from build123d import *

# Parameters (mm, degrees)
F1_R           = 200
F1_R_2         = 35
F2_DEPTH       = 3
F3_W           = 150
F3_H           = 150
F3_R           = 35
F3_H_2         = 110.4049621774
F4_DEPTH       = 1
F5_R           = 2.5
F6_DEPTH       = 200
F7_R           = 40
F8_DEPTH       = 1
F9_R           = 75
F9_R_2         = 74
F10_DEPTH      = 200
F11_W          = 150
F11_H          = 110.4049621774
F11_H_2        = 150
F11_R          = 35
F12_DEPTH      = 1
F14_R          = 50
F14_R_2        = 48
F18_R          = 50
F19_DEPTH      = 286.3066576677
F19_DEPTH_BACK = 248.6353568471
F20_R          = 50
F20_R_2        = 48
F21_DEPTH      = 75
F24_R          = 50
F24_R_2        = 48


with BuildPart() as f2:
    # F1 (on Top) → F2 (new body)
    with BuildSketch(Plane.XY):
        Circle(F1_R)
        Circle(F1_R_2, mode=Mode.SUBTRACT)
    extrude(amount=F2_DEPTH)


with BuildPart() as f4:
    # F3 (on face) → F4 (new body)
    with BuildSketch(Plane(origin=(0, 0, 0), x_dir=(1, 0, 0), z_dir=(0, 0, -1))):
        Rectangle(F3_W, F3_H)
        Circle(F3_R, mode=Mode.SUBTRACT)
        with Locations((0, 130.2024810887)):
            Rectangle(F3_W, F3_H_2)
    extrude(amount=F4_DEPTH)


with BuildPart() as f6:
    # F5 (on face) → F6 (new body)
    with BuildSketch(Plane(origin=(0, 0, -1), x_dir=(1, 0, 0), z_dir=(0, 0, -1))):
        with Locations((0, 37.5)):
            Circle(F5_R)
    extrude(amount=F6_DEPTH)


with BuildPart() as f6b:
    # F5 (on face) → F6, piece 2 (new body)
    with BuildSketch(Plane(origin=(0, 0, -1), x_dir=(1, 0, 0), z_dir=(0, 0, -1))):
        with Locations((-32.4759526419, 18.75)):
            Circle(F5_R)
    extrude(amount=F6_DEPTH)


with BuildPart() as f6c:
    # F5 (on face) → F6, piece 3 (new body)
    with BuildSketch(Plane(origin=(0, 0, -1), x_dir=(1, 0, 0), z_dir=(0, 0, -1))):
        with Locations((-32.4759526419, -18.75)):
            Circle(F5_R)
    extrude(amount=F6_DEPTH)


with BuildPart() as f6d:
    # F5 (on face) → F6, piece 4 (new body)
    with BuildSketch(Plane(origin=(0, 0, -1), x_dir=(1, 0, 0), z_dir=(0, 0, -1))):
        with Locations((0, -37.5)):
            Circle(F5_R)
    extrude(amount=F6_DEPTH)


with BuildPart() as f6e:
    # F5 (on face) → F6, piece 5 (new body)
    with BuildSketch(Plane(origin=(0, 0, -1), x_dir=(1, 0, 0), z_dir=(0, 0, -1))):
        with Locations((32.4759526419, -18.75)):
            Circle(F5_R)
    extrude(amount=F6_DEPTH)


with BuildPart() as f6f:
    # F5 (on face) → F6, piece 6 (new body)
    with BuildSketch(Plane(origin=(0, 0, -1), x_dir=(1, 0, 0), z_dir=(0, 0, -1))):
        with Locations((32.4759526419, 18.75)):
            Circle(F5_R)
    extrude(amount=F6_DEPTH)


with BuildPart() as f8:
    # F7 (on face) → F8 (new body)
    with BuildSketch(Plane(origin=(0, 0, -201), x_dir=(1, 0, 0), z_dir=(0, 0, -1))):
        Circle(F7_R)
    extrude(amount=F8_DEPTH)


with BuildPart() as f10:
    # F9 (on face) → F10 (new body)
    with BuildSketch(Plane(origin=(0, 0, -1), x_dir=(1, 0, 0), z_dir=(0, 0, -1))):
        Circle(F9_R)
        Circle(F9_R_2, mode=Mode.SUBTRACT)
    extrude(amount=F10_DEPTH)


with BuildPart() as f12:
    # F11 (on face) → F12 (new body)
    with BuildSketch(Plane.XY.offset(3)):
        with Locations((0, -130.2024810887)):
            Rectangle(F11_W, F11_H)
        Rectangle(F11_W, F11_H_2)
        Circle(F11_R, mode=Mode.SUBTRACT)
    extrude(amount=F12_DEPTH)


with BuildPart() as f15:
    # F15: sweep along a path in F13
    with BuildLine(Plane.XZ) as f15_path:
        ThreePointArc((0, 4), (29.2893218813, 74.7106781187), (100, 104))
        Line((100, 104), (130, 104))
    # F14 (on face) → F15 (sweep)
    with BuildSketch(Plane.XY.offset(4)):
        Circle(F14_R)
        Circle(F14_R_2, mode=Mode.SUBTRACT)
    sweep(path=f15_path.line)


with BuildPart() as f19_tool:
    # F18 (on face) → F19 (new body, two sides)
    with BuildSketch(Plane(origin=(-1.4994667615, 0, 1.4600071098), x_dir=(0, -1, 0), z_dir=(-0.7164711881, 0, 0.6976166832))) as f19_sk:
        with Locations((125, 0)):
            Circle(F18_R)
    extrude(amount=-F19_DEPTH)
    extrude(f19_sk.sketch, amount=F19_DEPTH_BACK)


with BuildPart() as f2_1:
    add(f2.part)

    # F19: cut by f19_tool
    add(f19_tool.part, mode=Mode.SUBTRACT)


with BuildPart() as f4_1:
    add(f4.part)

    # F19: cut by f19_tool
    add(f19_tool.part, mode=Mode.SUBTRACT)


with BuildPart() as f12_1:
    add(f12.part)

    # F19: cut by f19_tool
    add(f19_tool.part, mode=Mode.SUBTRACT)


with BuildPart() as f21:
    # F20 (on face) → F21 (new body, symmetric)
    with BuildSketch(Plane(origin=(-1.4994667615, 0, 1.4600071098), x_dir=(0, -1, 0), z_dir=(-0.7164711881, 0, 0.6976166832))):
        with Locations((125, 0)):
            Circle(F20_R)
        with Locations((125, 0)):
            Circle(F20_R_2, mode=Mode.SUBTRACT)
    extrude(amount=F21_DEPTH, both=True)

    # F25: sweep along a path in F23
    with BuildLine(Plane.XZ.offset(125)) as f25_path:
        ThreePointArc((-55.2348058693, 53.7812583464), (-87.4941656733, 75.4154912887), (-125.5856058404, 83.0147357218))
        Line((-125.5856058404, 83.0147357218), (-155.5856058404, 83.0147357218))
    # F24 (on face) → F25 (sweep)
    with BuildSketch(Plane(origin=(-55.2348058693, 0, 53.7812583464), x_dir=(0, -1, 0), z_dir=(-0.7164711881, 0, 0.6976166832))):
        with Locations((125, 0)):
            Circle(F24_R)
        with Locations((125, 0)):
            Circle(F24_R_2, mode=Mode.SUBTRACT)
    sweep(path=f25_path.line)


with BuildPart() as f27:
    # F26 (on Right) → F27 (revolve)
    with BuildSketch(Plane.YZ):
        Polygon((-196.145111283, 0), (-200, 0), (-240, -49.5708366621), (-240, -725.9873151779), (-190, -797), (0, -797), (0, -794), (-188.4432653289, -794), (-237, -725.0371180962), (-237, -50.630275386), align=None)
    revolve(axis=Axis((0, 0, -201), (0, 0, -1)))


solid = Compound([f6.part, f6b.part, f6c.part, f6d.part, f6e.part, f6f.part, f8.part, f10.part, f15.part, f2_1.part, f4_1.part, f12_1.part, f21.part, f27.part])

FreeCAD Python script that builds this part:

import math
import FreeCAD as App
import Part
import Sketcher

doc = App.newDocument("Part")
params = doc.addObject("Spreadsheet::Sheet", "Params")
for row, (alias, value) in enumerate([
    ("sketch1_diameter", "400 mm"),
    ("sketch1_diameter2", "70 mm"),
    ("pad1_length", "3 mm"),
    ("sketch2_diameter", "70 mm"),
    ("sketch2_width", "150 mm"),
    ("pad2_length", "1 mm"),
    ("sketch3_diameter", "5 mm"),
    ("pad3_length", "200 mm"),
    ("sketch4_diameter", "5 mm"),
    ("pad4_length", "200 mm"),
    ("sketch5_diameter", "5 mm"),
    ("pad5_length", "200 mm"),
    ("sketch6_diameter", "5 mm"),
    ("pad6_length", "200 mm"),
    ("sketch7_diameter", "5 mm"),
    ("pad7_length", "200 mm"),
    ("sketch8_diameter", "5 mm"),
    ("pad8_length", "200 mm"),
    ("sketch9_diameter", "80 mm"),
    ("pad9_length", "1 mm"),
    ("sketch10_diameter", "150 mm"),
    ("sketch10_diameter2", "148 mm"),
    ("pad10_length", "200 mm"),
    ("sketch11_diameter", "70 mm"),
    ("sketch11_width", "150 mm"),
    ("pad11_length", "1 mm"),
    ("sketch12_diameter", "100 mm"),
    ("sketch12_diameter2", "96 mm"),
    ("sketch13_radius", "100 mm"),
    ("sketch13_width", "30 mm"),
    ("sketch14_diameter", "100 mm"),
    ("pad12_length", "286.306658 mm"),
    ("pad12_length2", "248.635357 mm"),
    ("sketch15_diameter", "100 mm"),
    ("sketch15_diameter2", "96 mm"),
    ("pad13_length", "150 mm"),
    ("sketch16_diameter", "100 mm"),
    ("sketch16_diameter2", "96 mm"),
    ("sketch17_width", "30 mm"),
    ("sketch18_width", "190 mm"),
    ("sketch18_height", "3 mm"),
    ("revolution_angle", "360 deg"),
], start=1):
    params.set(f"A{row}", alias)
    params.set(f"B{row}", "=" + value)
    params.setAlias(f"B{row}", alias)

body = doc.addObject("PartDesign::Body", "Body")

# Sketch on XY plane
sketch1 = body.newObject("Sketcher::SketchObject", "Sketch")
sketch1.AttachmentSupport = (doc.getObject("XY_Plane"), [""])
sketch1.MapMode = "FlatFace"
sketch1.addGeometry([
    Part.Circle(App.Vector(0, 0, 0), App.Vector(0, 0, 1), 200),
    Part.Circle(App.Vector(0, 0, 0), App.Vector(0, 0, 1), 35),
], False)
sketch1.addConstraint([
    Sketcher.Constraint("Coincident", 0, 3, -1, 1),
    Sketcher.Constraint("Coincident", 1, 3, -1, 1),
    Sketcher.Constraint("Diameter", 0, 400.0),
    Sketcher.Constraint("Diameter", 1, 70.0),
])
sketch1.setExpression("Constraints[2]", "Params.sketch1_diameter")
sketch1.setExpression("Constraints[3]", "Params.sketch1_diameter2")
pad1 = body.newObject("PartDesign::Pad", "Pad")
pad1.Profile = sketch1
pad1.setExpression("Length", "Params.pad1_length")
body2 = doc.addObject("PartDesign::Body", "Body001")

# Sketch on XY plane
sketch2 = body2.newObject("Sketcher::SketchObject", "Sketch001")
sketch2.AttachmentSupport = (doc.getObject("XY_Plane001"), [""])
sketch2.MapMode = "FlatFace"
sketch2.addGeometry([
    Part.LineSegment(App.Vector(-75, 75, 0), App.Vector(75, 75, 0)),  # 0
    Part.LineSegment(App.Vector(75, 75, 0), App.Vector(75, -185.404962, 0)),  # 1
    Part.LineSegment(App.Vector(75, -185.404962, 0), App.Vector(-75, -185.404962, 0)),  # 2
    Part.LineSegment(App.Vector(-75, -185.404962, 0), App.Vector(-75, 75, 0)),  # 3
    Part.Circle(App.Vector(0, 0, 0), App.Vector(0, 0, 1), 35),  # 4
], False)
sketch2.addConstraint([
    Sketcher.Constraint("Coincident", 0, 2, 1, 1),
    Sketcher.Constraint("Coincident", 1, 2, 2, 1),
    Sketcher.Constraint("Coincident", 2, 2, 3, 1),
    Sketcher.Constraint("Coincident", 3, 2, 0, 1),
    Sketcher.Constraint("Horizontal", 0),
    Sketcher.Constraint("Vertical", 1),
    Sketcher.Constraint("Horizontal", 2),
    Sketcher.Constraint("Vertical", 3),
    Sketcher.Constraint("Coincident", 4, 3, -1, 1),
    Sketcher.Constraint("Diameter", 4, 70.0),
    Sketcher.Constraint("DistanceX", 0, 1, 0, 2, 150.0),
    Sketcher.Constraint("DistanceX", -1, 1, 0, 2, 75.0),
    Sketcher.Constraint("DistanceY", -1, 1, 0, 2, 75.0),
    Sketcher.Constraint("DistanceY", 1, 2, 1, 1, 260.404962),
])
sketch2.setExpression("Constraints[9]", "Params.sketch2_diameter")
sketch2.setExpression("Constraints[10]", "Params.sketch2_width")
pad2 = body2.newObject("PartDesign::Pad", "Pad001")
pad2.Profile = sketch2
pad2.setExpression("Length", "Params.pad2_length")
pad2.Reversed = True
body3 = doc.addObject("PartDesign::Body", "Body002")

# Sketch on XY plane
sketch3 = body3.newObject("Sketcher::SketchObject", "Sketch002")
sketch3.AttachmentSupport = (doc.getObject("XY_Plane002"), [""])
sketch3.MapMode = "FlatFace"
sketch3.AttachmentOffset = App.Placement(App.Vector(0, 0, -1), App.Rotation())
sketch3.addGeometry(Part.Circle(App.Vector(0, -37.5, 0), App.Vector(0, 0, 1), 2.5), False)
sketch3.addConstraint([
    Sketcher.Constraint("PointOnObject", 0, 3, -2),
    Sketcher.Constraint("Diameter", 0, 5.0),
    Sketcher.Constraint("DistanceY", 0, 3, -1, 1, 37.5),
])
sketch3.setExpression("Constraints[1]", "Params.sketch3_diameter")
pad3 = body3.newObject("PartDesign::Pad", "Pad002")
pad3.Profile = sketch3
pad3.setExpression("Length", "Params.pad3_length")
pad3.Reversed = True
body4 = doc.addObject("PartDesign::Body", "Body003")

# Sketch on XY plane
sketch4 = body4.newObject("Sketcher::SketchObject", "Sketch003")
sketch4.AttachmentSupport = (doc.getObject("XY_Plane003"), [""])
sketch4.MapMode = "FlatFace"
sketch4.AttachmentOffset = App.Placement(App.Vector(0, 0, -1), App.Rotation())
sketch4.addGeometry(Part.Circle(App.Vector(-32.475953, -18.75, 0), App.Vector(0, 0, 1), 2.5), False)
sketch4.addConstraint([
    Sketcher.Constraint("Diameter", 0, 5.0),
    Sketcher.Constraint("DistanceY", 0, 3, -1, 1, 18.75),
    Sketcher.Constraint("DistanceX", 0, 3, -1, 1, 32.475953),
])
sketch4.setExpression("Constraints[0]", "Params.sketch4_diameter")
pad4 = body4.newObject("PartDesign::Pad", "Pad003")
pad4.Profile = sketch4
pad4.setExpression("Length", "Params.pad4_length")
pad4.Reversed = True
body5 = doc.addObject("PartDesign::Body", "Body004")

# Sketch on XY plane
sketch5 = body5.newObject("Sketcher::SketchObject", "Sketch004")
sketch5.AttachmentSupport = (doc.getObject("XY_Plane004"), [""])
sketch5.MapMode = "FlatFace"
sketch5.AttachmentOffset = App.Placement(App.Vector(0, 0, -1), App.Rotation())
sketch5.addGeometry(Part.Circle(App.Vector(-32.475953, 18.75, 0), App.Vector(0, 0, 1), 2.5), False)
sketch5.addConstraint([
    Sketcher.Constraint("Diameter", 0, 5.0),
    Sketcher.Constraint("DistanceY", -1, 1, 0, 3, 18.75),
    Sketcher.Constraint("DistanceX", 0, 3, -1, 1, 32.475953),
])
sketch5.setExpression("Constraints[0]", "Params.sketch5_diameter")
pad5 = body5.newObject("PartDesign::Pad", "Pad004")
pad5.Profile = sketch5
pad5.setExpression("Length", "Params.pad5_length")
pad5.Reversed = True
body6 = doc.addObject("PartDesign::Body", "Body005")

# Sketch on XY plane
sketch6 = body6.newObject("Sketcher::SketchObject", "Sketch005")
sketch6.AttachmentSupport = (doc.getObject("XY_Plane005"), [""])
sketch6.MapMode = "FlatFace"
sketch6.AttachmentOffset = App.Placement(App.Vector(0, 0, -1), App.Rotation())
sketch6.addGeometry(Part.Circle(App.Vector(0, 37.5, 0), App.Vector(0, 0, 1), 2.5), False)
sketch6.addConstraint([
    Sketcher.Constraint("PointOnObject", 0, 3, -2),
    Sketcher.Constraint("Diameter", 0, 5.0),
    Sketcher.Constraint("DistanceY", -1, 1, 0, 3, 37.5),
])
sketch6.setExpression("Constraints[1]", "Params.sketch6_diameter")
pad6 = body6.newObject("PartDesign::Pad", "Pad005")
pad6.Profile = sketch6
pad6.setExpression("Length", "Params.pad6_length")
pad6.Reversed = True
body7 = doc.addObject("PartDesign::Body", "Body006")

# Sketch on XY plane
sketch7 = body7.newObject("Sketcher::SketchObject", "Sketch006")
sketch7.AttachmentSupport = (doc.getObject("XY_Plane006"), [""])
sketch7.MapMode = "FlatFace"
sketch7.AttachmentOffset = App.Placement(App.Vector(0, 0, -1), App.Rotation())
sketch7.addGeometry(Part.Circle(App.Vector(32.475953, 18.75, 0), App.Vector(0, 0, 1), 2.5), False)
sketch7.addConstraint([
    Sketcher.Constraint("Diameter", 0, 5.0),
    Sketcher.Constraint("DistanceY", -1, 1, 0, 3, 18.75),
    Sketcher.Constraint("DistanceX", -1, 1, 0, 3, 32.475953),
])
sketch7.setExpression("Constraints[0]", "Params.sketch7_diameter")
pad7 = body7.newObject("PartDesign::Pad", "Pad006")
pad7.Profile = sketch7
pad7.setExpression("Length", "Params.pad7_length")
pad7.Reversed = True
body8 = doc.addObject("PartDesign::Body", "Body007")

# Sketch on XY plane
sketch8 = body8.newObject("Sketcher::SketchObject", "Sketch007")
sketch8.AttachmentSupport = (doc.getObject("XY_Plane007"), [""])
sketch8.MapMode = "FlatFace"
sketch8.AttachmentOffset = App.Placement(App.Vector(0, 0, -1), App.Rotation())
sketch8.addGeometry(Part.Circle(App.Vector(32.475953, -18.75, 0), App.Vector(0, 0, 1), 2.5), False)
sketch8.addConstraint([
    Sketcher.Constraint("Diameter", 0, 5.0),
    Sketcher.Constraint("DistanceY", 0, 3, -1, 1, 18.75),
    Sketcher.Constraint("DistanceX", -1, 1, 0, 3, 32.475953),
])
sketch8.setExpression("Constraints[0]", "Params.sketch8_diameter")
pad8 = body8.newObject("PartDesign::Pad", "Pad007")
pad8.Profile = sketch8
pad8.setExpression("Length", "Params.pad8_length")
pad8.Reversed = True
body9 = doc.addObject("PartDesign::Body", "Body008")

# Sketch on XY plane
sketch9 = body9.newObject("Sketcher::SketchObject", "Sketch008")
sketch9.AttachmentSupport = (doc.getObject("XY_Plane008"), [""])
sketch9.MapMode = "FlatFace"
sketch9.AttachmentOffset = App.Placement(App.Vector(0, 0, -201), App.Rotation())
sketch9.addGeometry(Part.Circle(App.Vector(0, 0, 0), App.Vector(0, 0, 1), 40), False)
sketch9.addConstraint([
    Sketcher.Constraint("Coincident", 0, 3, -1, 1),
    Sketcher.Constraint("Diameter", 0, 80.0),
])
sketch9.setExpression("Constraints[1]", "Params.sketch9_diameter")
pad9 = body9.newObject("PartDesign::Pad", "Pad008")
pad9.Profile = sketch9
pad9.setExpression("Length", "Params.pad9_length")
pad9.Reversed = True
body10 = doc.addObject("PartDesign::Body", "Body009")

# Sketch on XY plane
sketch10 = body10.newObject("Sketcher::SketchObject", "Sketch009")
sketch10.AttachmentSupport = (doc.getObject("XY_Plane009"), [""])
sketch10.MapMode = "FlatFace"
sketch10.AttachmentOffset = App.Placement(App.Vector(0, 0, -1), App.Rotation())
sketch10.addGeometry([
    Part.Circle(App.Vector(0, 0, 0), App.Vector(0, 0, 1), 75),
    Part.Circle(App.Vector(0, 0, 0), App.Vector(0, 0, 1), 74),
], False)
sketch10.addConstraint([
    Sketcher.Constraint("Coincident", 0, 3, -1, 1),
    Sketcher.Constraint("Coincident", 1, 3, -1, 1),
    Sketcher.Constraint("Diameter", 0, 150.0),
    Sketcher.Constraint("Diameter", 1, 148.0),
])
sketch10.setExpression("Constraints[2]", "Params.sketch10_diameter")
sketch10.setExpression("Constraints[3]", "Params.sketch10_diameter2")
pad10 = body10.newObject("PartDesign::Pad", "Pad009")
pad10.Profile = sketch10
pad10.setExpression("Length", "Params.pad10_length")
pad10.Reversed = True
body11 = doc.addObject("PartDesign::Body", "Body010")

# Sketch on XY plane
sketch11 = body11.newObject("Sketcher::SketchObject", "Sketch010")
sketch11.AttachmentSupport = (doc.getObject("XY_Plane010"), [""])
sketch11.MapMode = "FlatFace"
sketch11.AttachmentOffset = App.Placement(App.Vector(0, 0, 3), App.Rotation())
sketch11.addGeometry([
    Part.LineSegment(App.Vector(-75, -185.404962, 0), App.Vector(75, -185.404962, 0)),  # 0
    Part.LineSegment(App.Vector(75, -185.404962, 0), App.Vector(75, 75, 0)),  # 1
    Part.LineSegment(App.Vector(75, 75, 0), App.Vector(-75, 75, 0)),  # 2
    Part.LineSegment(App.Vector(-75, 75, 0), App.Vector(-75, -185.404962, 0)),  # 3
    Part.Circle(App.Vector(0, 0, 0), App.Vector(0, 0, 1), 35),  # 4
], False)
sketch11.addConstraint([
    Sketcher.Constraint("Coincident", 0, 2, 1, 1),
    Sketcher.Constraint("Coincident", 1, 2, 2, 1),
    Sketcher.Constraint("Coincident", 2, 2, 3, 1),
    Sketcher.Constraint("Coincident", 3, 2, 0, 1),
    Sketcher.Constraint("Horizontal", 0),
    Sketcher.Constraint("Vertical", 1),
    Sketcher.Constraint("Horizontal", 2),
    Sketcher.Constraint("Vertical", 3),
    Sketcher.Constraint("Coincident", 4, 3, -1, 1),
    Sketcher.Constraint("Diameter", 4, 70.0),
    Sketcher.Constraint("DistanceX", 0, 1, 0, 2, 150.0),
    Sketcher.Constraint("DistanceX", -1, 1, 0, 2, 75.0),
    Sketcher.Constraint("DistanceY", -1, 1, 1, 2, 75.0),
    Sketcher.Constraint("DistanceY", 1, 1, 1, 2, 260.404962),
])
sketch11.setExpression("Constraints[9]", "Params.sketch11_diameter")
sketch11.setExpression("Constraints[10]", "Params.sketch11_width")
pad11 = body11.newObject("PartDesign::Pad", "Pad010")
pad11.Profile = sketch11
pad11.setExpression("Length", "Params.pad11_length")
body12 = doc.addObject("PartDesign::Body", "Body011")

# Sketch on XY plane
sketch12 = body12.newObject("Sketcher::SketchObject", "Sketch011")
sketch12.AttachmentSupport = (doc.getObject("XY_Plane011"), [""])
sketch12.MapMode = "FlatFace"
sketch12.AttachmentOffset = App.Placement(App.Vector(0, 0, 4), App.Rotation())
sketch12.addGeometry([
    Part.Circle(App.Vector(0, 0, 0), App.Vector(0, 0, 1), 50),
    Part.Circle(App.Vector(0, 0, 0), App.Vector(0, 0, 1), 48),
], False)
sketch12.addConstraint([
    Sketcher.Constraint("Coincident", 0, 3, -1, 1),
    Sketcher.Constraint("Coincident", 1, 3, -1, 1),
    Sketcher.Constraint("Diameter", 0, 100.0),
    Sketcher.Constraint("Diameter", 1, 96.0),
])
sketch12.setExpression("Constraints[2]", "Params.sketch12_diameter")
sketch12.setExpression("Constraints[3]", "Params.sketch12_diameter2")

# Sketch on XZ plane
sketch13 = body12.newObject("Sketcher::SketchObject", "Sketch012")
sketch13.AttachmentSupport = (doc.getObject("XZ_Plane011"), [""])
sketch13.MapMode = "FlatFace"
sketch13.addGeometry([
    Part.ArcOfCircle(Part.Circle(App.Vector(100, 4, 0), App.Vector(0, 0, 1), 100), math.radians(90), math.radians(180)),
    Part.LineSegment(App.Vector(100, 104, 0), App.Vector(130, 104, 0)),
], False)
sketch13.addConstraint([
    Sketcher.Constraint("Tangent", 0, 1, 1, 1),
    Sketcher.Constraint("Horizontal", 1),
    Sketcher.Constraint("PointOnObject", 0, 2, -2),
    Sketcher.Constraint("Radius", 0, 100.0),
    Sketcher.Constraint("DistanceX", 1, 1, 1, 2, 30.0),
    Sketcher.Constraint("DistanceY", -1, 1, 0, 3, 4.0),
    Sketcher.Constraint("DistanceY", -1, 1, 0, 2, 4.0),
])
sketch13.setExpression("Constraints[3]", "Params.sketch13_radius")
sketch13.setExpression("Constraints[4]", "Params.sketch13_width")
doc.recompute()

additivepipe = body12.newObject("PartDesign::AdditivePipe", "AdditivePipe")
additivepipe.Profile = sketch12
additivepipe.Spine = (sketch13, ["Edge1", "Edge2"])
body13 = doc.addObject("PartDesign::Body", "Body012")

# Sketch on an angled plane
sketch14 = body13.newObject("Sketcher::SketchObject", "Sketch013")
sketch14.Placement = App.Placement(App.Vector(-1.499467, 0, 1.460007), App.Rotation(App.Vector(0, -1, 0), App.Vector(0.697616683, 0, 0.716471188), App.Vector(-0.716471188, 0, 0.697616683), "ZXY"))
sketch14.addGeometry(Part.Circle(App.Vector(125, 0, 0), App.Vector(0, 0, 1), 50), False)
sketch14.addConstraint([
    Sketcher.Constraint("PointOnObject", 0, 3, -1),
    Sketcher.Constraint("Diameter", 0, 100.0),
    Sketcher.Constraint("DistanceX", -1, 1, 0, 3, 125.0),
])
sketch14.setExpression("Constraints[1]", "Params.sketch14_diameter")
pad12 = body13.newObject("PartDesign::Pad", "Pad011")
pad12.Profile = sketch14
pad12.Type = "TwoLengths"
pad12.setExpression("Length", "Params.pad12_length")
pad12.setExpression("Length2", "Params.pad12_length2")
pad12.Reversed = True
doc.recompute()

body14 = doc.addObject("PartDesign::Body", "Body013")
body14.BaseFeature = body13
boolean = body.newObject("PartDesign::Boolean", "Boolean")
boolean.Type = "Cut"
boolean.addObjects([body14])
doc.recompute()

body15 = doc.addObject("PartDesign::Body", "Body014")
body15.BaseFeature = body13
boolean2 = body2.newObject("PartDesign::Boolean", "Boolean001")
boolean2.Type = "Cut"
boolean2.addObjects([body15])
doc.recompute()

boolean3 = body11.newObject("PartDesign::Boolean", "Boolean002")
boolean3.Type = "Cut"
boolean3.addObjects([body13])
body16 = doc.addObject("PartDesign::Body", "Body015")

# Sketch on an angled plane
sketch15 = body16.newObject("Sketcher::SketchObject", "Sketch014")
sketch15.Placement = App.Placement(App.Vector(-1.499467, 0, 1.460007), App.Rotation(App.Vector(0, -1, 0), App.Vector(0.697616683, 0, 0.716471188), App.Vector(-0.716471188, 0, 0.697616683), "ZXY"))
sketch15.addGeometry([
    Part.Circle(App.Vector(125, 0, 0), App.Vector(0, 0, 1), 50),
    Part.Circle(App.Vector(125, 0, 0), App.Vector(0, 0, 1), 48),
], False)
sketch15.addConstraint([
    Sketcher.Constraint("Coincident", 1, 3, 0, 3),
    Sketcher.Constraint("PointOnObject", 0, 3, -1),
    Sketcher.Constraint("Diameter", 0, 100.0),
    Sketcher.Constraint("Diameter", 1, 96.0),
    Sketcher.Constraint("DistanceX", -1, 1, 0, 3, 125.0),
])
sketch15.setExpression("Constraints[2]", "Params.sketch15_diameter")
sketch15.setExpression("Constraints[3]", "Params.sketch15_diameter2")
pad13 = body16.newObject("PartDesign::Pad", "Pad012")
pad13.Profile = sketch15
pad13.setExpression("Length", "Params.pad13_length")
pad13.Midplane = True

# Sketch on an angled plane
sketch16 = body16.newObject("Sketcher::SketchObject", "Sketch015")
sketch16.Placement = App.Placement(App.Vector(-55.234806, 0, 53.781258), App.Rotation(App.Vector(0, -1, 0), App.Vector(0.697616683, 0, 0.716471188), App.Vector(-0.716471188, 0, 0.697616683), "ZXY"))
sketch16.addGeometry([
    Part.Circle(App.Vector(125, 0, 0), App.Vector(0, 0, 1), 50),
    Part.Circle(App.Vector(125, 0, 0), App.Vector(0, 0, 1), 48),
], False)
sketch16.addConstraint([
    Sketcher.Constraint("Coincident", 1, 3, 0, 3),
    Sketcher.Constraint("PointOnObject", 0, 3, -1),
    Sketcher.Constraint("Diameter", 0, 100.0),
    Sketcher.Constraint("Diameter", 1, 96.0),
    Sketcher.Constraint("DistanceX", -1, 1, 0, 3, 125.0),
])
sketch16.setExpression("Constraints[2]", "Params.sketch16_diameter")
sketch16.setExpression("Constraints[3]", "Params.sketch16_diameter2")

# Sketch on XZ plane
sketch17 = body16.newObject("Sketcher::SketchObject", "Sketch016")
sketch17.AttachmentSupport = (doc.getObject("XZ_Plane015"), [""])
sketch17.MapMode = "FlatFace"
sketch17.AttachmentOffset = App.Placement(App.Vector(0, 0, 125), App.Rotation())
sketch17.addGeometry([
    Part.ArcOfCircle(Part.Circle(App.Vector(-125.585606, -16.252128, 0), App.Vector(0, 0, 1), 99.266864), math.radians(44.870453), math.radians(90)),
    Part.LineSegment(App.Vector(-125.585606, 83.014736, 0), App.Vector(-155.585606, 83.014736, 0)),
], False)
sketch17.addConstraint([
    Sketcher.Constraint("Tangent", 0, 2, 1, 1),
    Sketcher.Constraint("Horizontal", 1),
    Sketcher.Constraint("DistanceX", 1, 2, 1, 1, 30.0),
    Sketcher.Constraint("Radius", 0, 99.266864),
    Sketcher.Constraint("DistanceX", 0, 3, 0, 1, 70.3508),
    Sketcher.Constraint("DistanceY", 0, 3, -1, 1, 16.252128),
    Sketcher.Constraint("DistanceX", 0, 3, -1, 1, 125.585606),
])
sketch17.setExpression("Constraints[2]", "Params.sketch17_width")
doc.recompute()

additivepipe2 = body16.newObject("PartDesign::AdditivePipe", "AdditivePipe001")
additivepipe2.Profile = sketch16
additivepipe2.Spine = (sketch17, ["Edge1", "Edge2"])
body17 = doc.addObject("PartDesign::Body", "Body016")

# Sketch on YZ plane
sketch18 = body17.newObject("Sketcher::SketchObject", "Sketch017")
sketch18.AttachmentSupport = (doc.getObject("YZ_Plane016"), [""])
sketch18.MapMode = "FlatFace"
sketch18.addGeometry([
    Part.LineSegment(App.Vector(-196.145111, 0, 0), App.Vector(-200, 0, 0)),  # 0
    Part.LineSegment(App.Vector(-200, 0, 0), App.Vector(-240, -49.570837, 0)),  # 1
    Part.LineSegment(App.Vector(-240, -49.570837, 0), App.Vector(-240, -725.987315, 0)),  # 2
    Part.LineSegment(App.Vector(-240, -725.987315, 0), App.Vector(-190, -797, 0)),  # 3
    Part.LineSegment(App.Vector(-190, -797, 0), App.Vector(0, -797, 0)),  # 4
    Part.LineSegment(App.Vector(0, -797, 0), App.Vector(0, -794, 0)),  # 5
    Part.LineSegment(App.Vector(0, -794, 0), App.Vector(-188.443265, -794, 0)),  # 6
    Part.LineSegment(App.Vector(-188.443265, -794, 0), App.Vector(-237, -725.037118, 0)),  # 7
    Part.LineSegment(App.Vector(-237, -725.037118, 0), App.Vector(-237, -50.630275, 0)),  # 8
    Part.LineSegment(App.Vector(-237, -50.630275, 0), App.Vector(-196.145111, 0, 0)),  # 9
], False)
sketch18.addConstraint([
    Sketcher.Constraint("Coincident", 0, 2, 1, 1),
    Sketcher.Constraint("Coincident", 1, 2, 2, 1),
    Sketcher.Constraint("Coincident", 2, 2, 3, 1),
    Sketcher.Constraint("Coincident", 3, 2, 4, 1),
    Sketcher.Constraint("Coincident", 4, 2, 5, 1),
    Sketcher.Constraint("Coincident", 5, 2, 6, 1),
    Sketcher.Constraint("Coincident", 6, 2, 7, 1),
    Sketcher.Constraint("Coincident", 7, 2, 8, 1),
    Sketcher.Constraint("Coincident", 8, 2, 9, 1),
    Sketcher.Constraint("Coincident", 9, 2, 0, 1),
    Sketcher.Constraint("Horizontal", 0),
    Sketcher.Constraint("Vertical", 2),
    Sketcher.Constraint("Horizontal", 4),
    Sketcher.Constraint("Vertical", 5),
    Sketcher.Constraint("Horizontal", 6),
    Sketcher.Constraint("Vertical", 8),
    Sketcher.Constraint("PointOnObject", 0, 2, -1),
    Sketcher.Constraint("PointOnObject", 4, 2, -2),
    Sketcher.Constraint("Parallel", 3, 7),
    Sketcher.Constraint("Parallel", 1, 9),
    Sketcher.Constraint("DistanceX", 4, 1, 4, 2, 190.0),
    Sketcher.Constraint("DistanceY", 5, 1, 5, 2, 3.0),
    Sketcher.Constraint("DistanceX", 0, 2, -1, 1, 200.0),
    Sketcher.Constraint("DistanceX", 1, 2, -1, 1, 240.0),
    Sketcher.Constraint("DistanceY", 3, 2, -1, 1, 797.0),
    Sketcher.Constraint("DistanceX", 7, 2, -1, 1, 237.0),
    Sketcher.Constraint("DistanceX", 0, 2, 0, 1, 3.854889),
    Sketcher.Constraint("DistanceY", 2, 2, 2, 1, 676.416479),
    Sketcher.Constraint("Distance", 7, 84.342371),
    Sketcher.Constraint("DistanceX", 6, 2, 6, 1, 188.443265),
])
sketch18.setExpression("Constraints[20]", "Params.sketch18_width")
sketch18.setExpression("Constraints[21]", "Params.sketch18_height")
revolution = body17.newObject("PartDesign::Revolution", "Revolution")
revolution.Profile = sketch18
revolution.ReferenceAxis = (sketch18, ["V_Axis"])
revolution.setExpression("Angle", "Params.revolution_angle")

doc.recompute()
